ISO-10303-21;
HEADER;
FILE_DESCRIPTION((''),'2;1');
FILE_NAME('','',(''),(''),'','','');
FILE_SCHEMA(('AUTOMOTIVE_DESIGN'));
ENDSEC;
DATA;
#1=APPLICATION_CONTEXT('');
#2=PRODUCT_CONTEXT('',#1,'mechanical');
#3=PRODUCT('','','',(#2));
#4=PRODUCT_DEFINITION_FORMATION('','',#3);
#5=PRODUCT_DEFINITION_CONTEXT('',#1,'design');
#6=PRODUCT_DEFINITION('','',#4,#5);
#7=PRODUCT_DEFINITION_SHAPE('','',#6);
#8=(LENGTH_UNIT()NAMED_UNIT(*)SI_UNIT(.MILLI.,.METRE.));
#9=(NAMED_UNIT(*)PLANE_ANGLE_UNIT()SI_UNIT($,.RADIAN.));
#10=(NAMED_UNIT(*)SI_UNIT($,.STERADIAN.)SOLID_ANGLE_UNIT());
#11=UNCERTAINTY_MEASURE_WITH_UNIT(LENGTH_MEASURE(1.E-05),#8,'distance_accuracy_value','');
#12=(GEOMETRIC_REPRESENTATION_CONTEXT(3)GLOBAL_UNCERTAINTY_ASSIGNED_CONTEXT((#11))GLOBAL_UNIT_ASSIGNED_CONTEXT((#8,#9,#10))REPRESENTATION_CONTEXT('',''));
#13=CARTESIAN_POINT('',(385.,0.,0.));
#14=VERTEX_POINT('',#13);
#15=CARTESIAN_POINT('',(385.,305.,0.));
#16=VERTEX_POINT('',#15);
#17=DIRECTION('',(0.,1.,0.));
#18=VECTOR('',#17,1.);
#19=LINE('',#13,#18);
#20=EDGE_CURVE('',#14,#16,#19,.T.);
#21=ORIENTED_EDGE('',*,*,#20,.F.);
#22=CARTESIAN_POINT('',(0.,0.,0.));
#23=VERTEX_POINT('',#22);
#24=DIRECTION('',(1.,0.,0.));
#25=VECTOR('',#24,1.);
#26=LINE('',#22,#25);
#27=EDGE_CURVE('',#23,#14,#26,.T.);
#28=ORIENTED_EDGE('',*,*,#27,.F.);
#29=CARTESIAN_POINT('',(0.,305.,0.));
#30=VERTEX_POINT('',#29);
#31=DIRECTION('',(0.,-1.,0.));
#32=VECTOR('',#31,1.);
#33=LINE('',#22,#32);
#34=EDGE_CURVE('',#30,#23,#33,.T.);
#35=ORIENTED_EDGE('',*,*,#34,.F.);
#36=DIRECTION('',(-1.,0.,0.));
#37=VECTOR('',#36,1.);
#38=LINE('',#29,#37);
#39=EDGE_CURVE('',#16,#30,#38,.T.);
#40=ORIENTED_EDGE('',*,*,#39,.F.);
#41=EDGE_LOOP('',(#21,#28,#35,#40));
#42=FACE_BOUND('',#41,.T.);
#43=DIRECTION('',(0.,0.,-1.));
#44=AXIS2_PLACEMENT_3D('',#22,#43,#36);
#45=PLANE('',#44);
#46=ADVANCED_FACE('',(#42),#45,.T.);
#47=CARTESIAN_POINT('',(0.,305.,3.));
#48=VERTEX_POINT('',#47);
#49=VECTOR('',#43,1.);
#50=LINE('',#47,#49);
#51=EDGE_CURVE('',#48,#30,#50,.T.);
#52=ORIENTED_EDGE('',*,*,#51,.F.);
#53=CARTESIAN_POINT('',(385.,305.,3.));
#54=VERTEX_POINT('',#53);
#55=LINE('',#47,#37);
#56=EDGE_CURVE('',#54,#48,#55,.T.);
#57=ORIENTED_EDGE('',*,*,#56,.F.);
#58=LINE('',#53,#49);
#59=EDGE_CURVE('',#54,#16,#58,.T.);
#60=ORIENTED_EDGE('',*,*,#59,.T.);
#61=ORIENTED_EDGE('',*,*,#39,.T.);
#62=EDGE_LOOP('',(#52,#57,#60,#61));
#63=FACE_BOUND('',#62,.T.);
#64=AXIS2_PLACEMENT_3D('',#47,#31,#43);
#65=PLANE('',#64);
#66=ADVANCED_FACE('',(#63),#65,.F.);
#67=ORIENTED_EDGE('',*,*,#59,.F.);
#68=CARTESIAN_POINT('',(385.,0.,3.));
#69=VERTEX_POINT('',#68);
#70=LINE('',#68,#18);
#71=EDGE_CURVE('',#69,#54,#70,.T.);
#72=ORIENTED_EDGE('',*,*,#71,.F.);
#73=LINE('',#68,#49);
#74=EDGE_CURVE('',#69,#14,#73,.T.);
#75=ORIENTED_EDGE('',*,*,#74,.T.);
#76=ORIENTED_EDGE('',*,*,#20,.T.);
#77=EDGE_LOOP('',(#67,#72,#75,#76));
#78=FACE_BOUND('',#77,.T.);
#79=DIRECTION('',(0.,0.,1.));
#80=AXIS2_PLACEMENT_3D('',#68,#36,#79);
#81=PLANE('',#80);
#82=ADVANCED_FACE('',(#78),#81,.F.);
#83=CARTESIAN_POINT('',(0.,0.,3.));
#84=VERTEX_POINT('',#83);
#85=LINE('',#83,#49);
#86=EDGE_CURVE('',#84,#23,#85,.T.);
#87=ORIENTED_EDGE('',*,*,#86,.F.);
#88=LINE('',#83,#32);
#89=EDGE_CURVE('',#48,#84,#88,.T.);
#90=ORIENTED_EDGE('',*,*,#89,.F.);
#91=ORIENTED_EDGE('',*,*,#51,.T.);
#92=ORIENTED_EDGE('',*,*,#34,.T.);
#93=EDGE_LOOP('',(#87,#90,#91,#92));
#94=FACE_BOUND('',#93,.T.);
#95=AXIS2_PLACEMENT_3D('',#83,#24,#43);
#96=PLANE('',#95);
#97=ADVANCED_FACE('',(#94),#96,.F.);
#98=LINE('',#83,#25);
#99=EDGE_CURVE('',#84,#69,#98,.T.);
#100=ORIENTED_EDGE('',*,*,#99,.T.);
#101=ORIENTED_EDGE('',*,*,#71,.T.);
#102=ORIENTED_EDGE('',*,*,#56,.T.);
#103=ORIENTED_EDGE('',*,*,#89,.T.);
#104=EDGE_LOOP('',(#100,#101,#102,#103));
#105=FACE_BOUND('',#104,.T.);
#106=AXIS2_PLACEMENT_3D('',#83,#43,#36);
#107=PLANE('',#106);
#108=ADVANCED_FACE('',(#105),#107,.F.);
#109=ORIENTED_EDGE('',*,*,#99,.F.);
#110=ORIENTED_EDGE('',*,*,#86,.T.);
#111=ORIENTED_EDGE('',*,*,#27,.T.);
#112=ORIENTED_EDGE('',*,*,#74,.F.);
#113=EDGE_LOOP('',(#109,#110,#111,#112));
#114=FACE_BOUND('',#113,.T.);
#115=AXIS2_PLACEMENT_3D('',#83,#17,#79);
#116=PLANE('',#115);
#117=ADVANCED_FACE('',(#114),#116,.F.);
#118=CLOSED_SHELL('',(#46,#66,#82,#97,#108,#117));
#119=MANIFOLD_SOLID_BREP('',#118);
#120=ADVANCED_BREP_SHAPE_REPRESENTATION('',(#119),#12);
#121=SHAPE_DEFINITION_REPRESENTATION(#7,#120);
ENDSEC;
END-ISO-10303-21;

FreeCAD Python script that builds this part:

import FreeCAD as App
import Part
import Sketcher
from FreeCAD import Vector
Q = App.Units.Quantity

doc = App.newDocument("Part")
body = doc.addObject("PartDesign::Body", "Body")

# Sketch on XY plane
sketch1 = body.newObject("Sketcher::SketchObject", "Sketch")
sketch1.AttachmentSupport = (doc.getObject("XY_Plane"), [""])
sketch1.MapMode = "FlatFace"
sketch1.addGeometry([
    Part.LineSegment(Vector(0, 305, 0), Vector(0, 0, 0)),
    Part.LineSegment(Vector(0, 0, 0), Vector(385, 0, 0)),
    Part.LineSegment(Vector(385, 0, 0), Vector(385, 305, 0)),
    Part.LineSegment(Vector(385, 305, 0), Vector(0, 305, 0)),
], False)
sketch1.addConstraint([
    Sketcher.Constraint("Coincident", 0, 2, 1, 1),
    Sketcher.Constraint("Coincident", 1, 2, 2, 1),
    Sketcher.Constraint("Coincident", 2, 2, 3, 1),
    Sketcher.Constraint("Coincident", 3, 2, 0, 1),
    Sketcher.Constraint("Vertical", 0),
    Sketcher.Constraint("Horizontal", 1),
    Sketcher.Constraint("Vertical", 2),
    Sketcher.Constraint("Horizontal", 3),
    Sketcher.Constraint("Coincident", 0, 2, -1, 1),
    Sketcher.Constraint("DistanceX", 1, 1, 1, 2, Q("385 mm")),
    Sketcher.Constraint("DistanceY", 0, 2, 0, 1, Q("305 mm")),
])
pad1 = body.newObject("PartDesign::Pad", "Pad")
pad1.Profile = sketch1
pad1.Length = 3

doc.recompute()
